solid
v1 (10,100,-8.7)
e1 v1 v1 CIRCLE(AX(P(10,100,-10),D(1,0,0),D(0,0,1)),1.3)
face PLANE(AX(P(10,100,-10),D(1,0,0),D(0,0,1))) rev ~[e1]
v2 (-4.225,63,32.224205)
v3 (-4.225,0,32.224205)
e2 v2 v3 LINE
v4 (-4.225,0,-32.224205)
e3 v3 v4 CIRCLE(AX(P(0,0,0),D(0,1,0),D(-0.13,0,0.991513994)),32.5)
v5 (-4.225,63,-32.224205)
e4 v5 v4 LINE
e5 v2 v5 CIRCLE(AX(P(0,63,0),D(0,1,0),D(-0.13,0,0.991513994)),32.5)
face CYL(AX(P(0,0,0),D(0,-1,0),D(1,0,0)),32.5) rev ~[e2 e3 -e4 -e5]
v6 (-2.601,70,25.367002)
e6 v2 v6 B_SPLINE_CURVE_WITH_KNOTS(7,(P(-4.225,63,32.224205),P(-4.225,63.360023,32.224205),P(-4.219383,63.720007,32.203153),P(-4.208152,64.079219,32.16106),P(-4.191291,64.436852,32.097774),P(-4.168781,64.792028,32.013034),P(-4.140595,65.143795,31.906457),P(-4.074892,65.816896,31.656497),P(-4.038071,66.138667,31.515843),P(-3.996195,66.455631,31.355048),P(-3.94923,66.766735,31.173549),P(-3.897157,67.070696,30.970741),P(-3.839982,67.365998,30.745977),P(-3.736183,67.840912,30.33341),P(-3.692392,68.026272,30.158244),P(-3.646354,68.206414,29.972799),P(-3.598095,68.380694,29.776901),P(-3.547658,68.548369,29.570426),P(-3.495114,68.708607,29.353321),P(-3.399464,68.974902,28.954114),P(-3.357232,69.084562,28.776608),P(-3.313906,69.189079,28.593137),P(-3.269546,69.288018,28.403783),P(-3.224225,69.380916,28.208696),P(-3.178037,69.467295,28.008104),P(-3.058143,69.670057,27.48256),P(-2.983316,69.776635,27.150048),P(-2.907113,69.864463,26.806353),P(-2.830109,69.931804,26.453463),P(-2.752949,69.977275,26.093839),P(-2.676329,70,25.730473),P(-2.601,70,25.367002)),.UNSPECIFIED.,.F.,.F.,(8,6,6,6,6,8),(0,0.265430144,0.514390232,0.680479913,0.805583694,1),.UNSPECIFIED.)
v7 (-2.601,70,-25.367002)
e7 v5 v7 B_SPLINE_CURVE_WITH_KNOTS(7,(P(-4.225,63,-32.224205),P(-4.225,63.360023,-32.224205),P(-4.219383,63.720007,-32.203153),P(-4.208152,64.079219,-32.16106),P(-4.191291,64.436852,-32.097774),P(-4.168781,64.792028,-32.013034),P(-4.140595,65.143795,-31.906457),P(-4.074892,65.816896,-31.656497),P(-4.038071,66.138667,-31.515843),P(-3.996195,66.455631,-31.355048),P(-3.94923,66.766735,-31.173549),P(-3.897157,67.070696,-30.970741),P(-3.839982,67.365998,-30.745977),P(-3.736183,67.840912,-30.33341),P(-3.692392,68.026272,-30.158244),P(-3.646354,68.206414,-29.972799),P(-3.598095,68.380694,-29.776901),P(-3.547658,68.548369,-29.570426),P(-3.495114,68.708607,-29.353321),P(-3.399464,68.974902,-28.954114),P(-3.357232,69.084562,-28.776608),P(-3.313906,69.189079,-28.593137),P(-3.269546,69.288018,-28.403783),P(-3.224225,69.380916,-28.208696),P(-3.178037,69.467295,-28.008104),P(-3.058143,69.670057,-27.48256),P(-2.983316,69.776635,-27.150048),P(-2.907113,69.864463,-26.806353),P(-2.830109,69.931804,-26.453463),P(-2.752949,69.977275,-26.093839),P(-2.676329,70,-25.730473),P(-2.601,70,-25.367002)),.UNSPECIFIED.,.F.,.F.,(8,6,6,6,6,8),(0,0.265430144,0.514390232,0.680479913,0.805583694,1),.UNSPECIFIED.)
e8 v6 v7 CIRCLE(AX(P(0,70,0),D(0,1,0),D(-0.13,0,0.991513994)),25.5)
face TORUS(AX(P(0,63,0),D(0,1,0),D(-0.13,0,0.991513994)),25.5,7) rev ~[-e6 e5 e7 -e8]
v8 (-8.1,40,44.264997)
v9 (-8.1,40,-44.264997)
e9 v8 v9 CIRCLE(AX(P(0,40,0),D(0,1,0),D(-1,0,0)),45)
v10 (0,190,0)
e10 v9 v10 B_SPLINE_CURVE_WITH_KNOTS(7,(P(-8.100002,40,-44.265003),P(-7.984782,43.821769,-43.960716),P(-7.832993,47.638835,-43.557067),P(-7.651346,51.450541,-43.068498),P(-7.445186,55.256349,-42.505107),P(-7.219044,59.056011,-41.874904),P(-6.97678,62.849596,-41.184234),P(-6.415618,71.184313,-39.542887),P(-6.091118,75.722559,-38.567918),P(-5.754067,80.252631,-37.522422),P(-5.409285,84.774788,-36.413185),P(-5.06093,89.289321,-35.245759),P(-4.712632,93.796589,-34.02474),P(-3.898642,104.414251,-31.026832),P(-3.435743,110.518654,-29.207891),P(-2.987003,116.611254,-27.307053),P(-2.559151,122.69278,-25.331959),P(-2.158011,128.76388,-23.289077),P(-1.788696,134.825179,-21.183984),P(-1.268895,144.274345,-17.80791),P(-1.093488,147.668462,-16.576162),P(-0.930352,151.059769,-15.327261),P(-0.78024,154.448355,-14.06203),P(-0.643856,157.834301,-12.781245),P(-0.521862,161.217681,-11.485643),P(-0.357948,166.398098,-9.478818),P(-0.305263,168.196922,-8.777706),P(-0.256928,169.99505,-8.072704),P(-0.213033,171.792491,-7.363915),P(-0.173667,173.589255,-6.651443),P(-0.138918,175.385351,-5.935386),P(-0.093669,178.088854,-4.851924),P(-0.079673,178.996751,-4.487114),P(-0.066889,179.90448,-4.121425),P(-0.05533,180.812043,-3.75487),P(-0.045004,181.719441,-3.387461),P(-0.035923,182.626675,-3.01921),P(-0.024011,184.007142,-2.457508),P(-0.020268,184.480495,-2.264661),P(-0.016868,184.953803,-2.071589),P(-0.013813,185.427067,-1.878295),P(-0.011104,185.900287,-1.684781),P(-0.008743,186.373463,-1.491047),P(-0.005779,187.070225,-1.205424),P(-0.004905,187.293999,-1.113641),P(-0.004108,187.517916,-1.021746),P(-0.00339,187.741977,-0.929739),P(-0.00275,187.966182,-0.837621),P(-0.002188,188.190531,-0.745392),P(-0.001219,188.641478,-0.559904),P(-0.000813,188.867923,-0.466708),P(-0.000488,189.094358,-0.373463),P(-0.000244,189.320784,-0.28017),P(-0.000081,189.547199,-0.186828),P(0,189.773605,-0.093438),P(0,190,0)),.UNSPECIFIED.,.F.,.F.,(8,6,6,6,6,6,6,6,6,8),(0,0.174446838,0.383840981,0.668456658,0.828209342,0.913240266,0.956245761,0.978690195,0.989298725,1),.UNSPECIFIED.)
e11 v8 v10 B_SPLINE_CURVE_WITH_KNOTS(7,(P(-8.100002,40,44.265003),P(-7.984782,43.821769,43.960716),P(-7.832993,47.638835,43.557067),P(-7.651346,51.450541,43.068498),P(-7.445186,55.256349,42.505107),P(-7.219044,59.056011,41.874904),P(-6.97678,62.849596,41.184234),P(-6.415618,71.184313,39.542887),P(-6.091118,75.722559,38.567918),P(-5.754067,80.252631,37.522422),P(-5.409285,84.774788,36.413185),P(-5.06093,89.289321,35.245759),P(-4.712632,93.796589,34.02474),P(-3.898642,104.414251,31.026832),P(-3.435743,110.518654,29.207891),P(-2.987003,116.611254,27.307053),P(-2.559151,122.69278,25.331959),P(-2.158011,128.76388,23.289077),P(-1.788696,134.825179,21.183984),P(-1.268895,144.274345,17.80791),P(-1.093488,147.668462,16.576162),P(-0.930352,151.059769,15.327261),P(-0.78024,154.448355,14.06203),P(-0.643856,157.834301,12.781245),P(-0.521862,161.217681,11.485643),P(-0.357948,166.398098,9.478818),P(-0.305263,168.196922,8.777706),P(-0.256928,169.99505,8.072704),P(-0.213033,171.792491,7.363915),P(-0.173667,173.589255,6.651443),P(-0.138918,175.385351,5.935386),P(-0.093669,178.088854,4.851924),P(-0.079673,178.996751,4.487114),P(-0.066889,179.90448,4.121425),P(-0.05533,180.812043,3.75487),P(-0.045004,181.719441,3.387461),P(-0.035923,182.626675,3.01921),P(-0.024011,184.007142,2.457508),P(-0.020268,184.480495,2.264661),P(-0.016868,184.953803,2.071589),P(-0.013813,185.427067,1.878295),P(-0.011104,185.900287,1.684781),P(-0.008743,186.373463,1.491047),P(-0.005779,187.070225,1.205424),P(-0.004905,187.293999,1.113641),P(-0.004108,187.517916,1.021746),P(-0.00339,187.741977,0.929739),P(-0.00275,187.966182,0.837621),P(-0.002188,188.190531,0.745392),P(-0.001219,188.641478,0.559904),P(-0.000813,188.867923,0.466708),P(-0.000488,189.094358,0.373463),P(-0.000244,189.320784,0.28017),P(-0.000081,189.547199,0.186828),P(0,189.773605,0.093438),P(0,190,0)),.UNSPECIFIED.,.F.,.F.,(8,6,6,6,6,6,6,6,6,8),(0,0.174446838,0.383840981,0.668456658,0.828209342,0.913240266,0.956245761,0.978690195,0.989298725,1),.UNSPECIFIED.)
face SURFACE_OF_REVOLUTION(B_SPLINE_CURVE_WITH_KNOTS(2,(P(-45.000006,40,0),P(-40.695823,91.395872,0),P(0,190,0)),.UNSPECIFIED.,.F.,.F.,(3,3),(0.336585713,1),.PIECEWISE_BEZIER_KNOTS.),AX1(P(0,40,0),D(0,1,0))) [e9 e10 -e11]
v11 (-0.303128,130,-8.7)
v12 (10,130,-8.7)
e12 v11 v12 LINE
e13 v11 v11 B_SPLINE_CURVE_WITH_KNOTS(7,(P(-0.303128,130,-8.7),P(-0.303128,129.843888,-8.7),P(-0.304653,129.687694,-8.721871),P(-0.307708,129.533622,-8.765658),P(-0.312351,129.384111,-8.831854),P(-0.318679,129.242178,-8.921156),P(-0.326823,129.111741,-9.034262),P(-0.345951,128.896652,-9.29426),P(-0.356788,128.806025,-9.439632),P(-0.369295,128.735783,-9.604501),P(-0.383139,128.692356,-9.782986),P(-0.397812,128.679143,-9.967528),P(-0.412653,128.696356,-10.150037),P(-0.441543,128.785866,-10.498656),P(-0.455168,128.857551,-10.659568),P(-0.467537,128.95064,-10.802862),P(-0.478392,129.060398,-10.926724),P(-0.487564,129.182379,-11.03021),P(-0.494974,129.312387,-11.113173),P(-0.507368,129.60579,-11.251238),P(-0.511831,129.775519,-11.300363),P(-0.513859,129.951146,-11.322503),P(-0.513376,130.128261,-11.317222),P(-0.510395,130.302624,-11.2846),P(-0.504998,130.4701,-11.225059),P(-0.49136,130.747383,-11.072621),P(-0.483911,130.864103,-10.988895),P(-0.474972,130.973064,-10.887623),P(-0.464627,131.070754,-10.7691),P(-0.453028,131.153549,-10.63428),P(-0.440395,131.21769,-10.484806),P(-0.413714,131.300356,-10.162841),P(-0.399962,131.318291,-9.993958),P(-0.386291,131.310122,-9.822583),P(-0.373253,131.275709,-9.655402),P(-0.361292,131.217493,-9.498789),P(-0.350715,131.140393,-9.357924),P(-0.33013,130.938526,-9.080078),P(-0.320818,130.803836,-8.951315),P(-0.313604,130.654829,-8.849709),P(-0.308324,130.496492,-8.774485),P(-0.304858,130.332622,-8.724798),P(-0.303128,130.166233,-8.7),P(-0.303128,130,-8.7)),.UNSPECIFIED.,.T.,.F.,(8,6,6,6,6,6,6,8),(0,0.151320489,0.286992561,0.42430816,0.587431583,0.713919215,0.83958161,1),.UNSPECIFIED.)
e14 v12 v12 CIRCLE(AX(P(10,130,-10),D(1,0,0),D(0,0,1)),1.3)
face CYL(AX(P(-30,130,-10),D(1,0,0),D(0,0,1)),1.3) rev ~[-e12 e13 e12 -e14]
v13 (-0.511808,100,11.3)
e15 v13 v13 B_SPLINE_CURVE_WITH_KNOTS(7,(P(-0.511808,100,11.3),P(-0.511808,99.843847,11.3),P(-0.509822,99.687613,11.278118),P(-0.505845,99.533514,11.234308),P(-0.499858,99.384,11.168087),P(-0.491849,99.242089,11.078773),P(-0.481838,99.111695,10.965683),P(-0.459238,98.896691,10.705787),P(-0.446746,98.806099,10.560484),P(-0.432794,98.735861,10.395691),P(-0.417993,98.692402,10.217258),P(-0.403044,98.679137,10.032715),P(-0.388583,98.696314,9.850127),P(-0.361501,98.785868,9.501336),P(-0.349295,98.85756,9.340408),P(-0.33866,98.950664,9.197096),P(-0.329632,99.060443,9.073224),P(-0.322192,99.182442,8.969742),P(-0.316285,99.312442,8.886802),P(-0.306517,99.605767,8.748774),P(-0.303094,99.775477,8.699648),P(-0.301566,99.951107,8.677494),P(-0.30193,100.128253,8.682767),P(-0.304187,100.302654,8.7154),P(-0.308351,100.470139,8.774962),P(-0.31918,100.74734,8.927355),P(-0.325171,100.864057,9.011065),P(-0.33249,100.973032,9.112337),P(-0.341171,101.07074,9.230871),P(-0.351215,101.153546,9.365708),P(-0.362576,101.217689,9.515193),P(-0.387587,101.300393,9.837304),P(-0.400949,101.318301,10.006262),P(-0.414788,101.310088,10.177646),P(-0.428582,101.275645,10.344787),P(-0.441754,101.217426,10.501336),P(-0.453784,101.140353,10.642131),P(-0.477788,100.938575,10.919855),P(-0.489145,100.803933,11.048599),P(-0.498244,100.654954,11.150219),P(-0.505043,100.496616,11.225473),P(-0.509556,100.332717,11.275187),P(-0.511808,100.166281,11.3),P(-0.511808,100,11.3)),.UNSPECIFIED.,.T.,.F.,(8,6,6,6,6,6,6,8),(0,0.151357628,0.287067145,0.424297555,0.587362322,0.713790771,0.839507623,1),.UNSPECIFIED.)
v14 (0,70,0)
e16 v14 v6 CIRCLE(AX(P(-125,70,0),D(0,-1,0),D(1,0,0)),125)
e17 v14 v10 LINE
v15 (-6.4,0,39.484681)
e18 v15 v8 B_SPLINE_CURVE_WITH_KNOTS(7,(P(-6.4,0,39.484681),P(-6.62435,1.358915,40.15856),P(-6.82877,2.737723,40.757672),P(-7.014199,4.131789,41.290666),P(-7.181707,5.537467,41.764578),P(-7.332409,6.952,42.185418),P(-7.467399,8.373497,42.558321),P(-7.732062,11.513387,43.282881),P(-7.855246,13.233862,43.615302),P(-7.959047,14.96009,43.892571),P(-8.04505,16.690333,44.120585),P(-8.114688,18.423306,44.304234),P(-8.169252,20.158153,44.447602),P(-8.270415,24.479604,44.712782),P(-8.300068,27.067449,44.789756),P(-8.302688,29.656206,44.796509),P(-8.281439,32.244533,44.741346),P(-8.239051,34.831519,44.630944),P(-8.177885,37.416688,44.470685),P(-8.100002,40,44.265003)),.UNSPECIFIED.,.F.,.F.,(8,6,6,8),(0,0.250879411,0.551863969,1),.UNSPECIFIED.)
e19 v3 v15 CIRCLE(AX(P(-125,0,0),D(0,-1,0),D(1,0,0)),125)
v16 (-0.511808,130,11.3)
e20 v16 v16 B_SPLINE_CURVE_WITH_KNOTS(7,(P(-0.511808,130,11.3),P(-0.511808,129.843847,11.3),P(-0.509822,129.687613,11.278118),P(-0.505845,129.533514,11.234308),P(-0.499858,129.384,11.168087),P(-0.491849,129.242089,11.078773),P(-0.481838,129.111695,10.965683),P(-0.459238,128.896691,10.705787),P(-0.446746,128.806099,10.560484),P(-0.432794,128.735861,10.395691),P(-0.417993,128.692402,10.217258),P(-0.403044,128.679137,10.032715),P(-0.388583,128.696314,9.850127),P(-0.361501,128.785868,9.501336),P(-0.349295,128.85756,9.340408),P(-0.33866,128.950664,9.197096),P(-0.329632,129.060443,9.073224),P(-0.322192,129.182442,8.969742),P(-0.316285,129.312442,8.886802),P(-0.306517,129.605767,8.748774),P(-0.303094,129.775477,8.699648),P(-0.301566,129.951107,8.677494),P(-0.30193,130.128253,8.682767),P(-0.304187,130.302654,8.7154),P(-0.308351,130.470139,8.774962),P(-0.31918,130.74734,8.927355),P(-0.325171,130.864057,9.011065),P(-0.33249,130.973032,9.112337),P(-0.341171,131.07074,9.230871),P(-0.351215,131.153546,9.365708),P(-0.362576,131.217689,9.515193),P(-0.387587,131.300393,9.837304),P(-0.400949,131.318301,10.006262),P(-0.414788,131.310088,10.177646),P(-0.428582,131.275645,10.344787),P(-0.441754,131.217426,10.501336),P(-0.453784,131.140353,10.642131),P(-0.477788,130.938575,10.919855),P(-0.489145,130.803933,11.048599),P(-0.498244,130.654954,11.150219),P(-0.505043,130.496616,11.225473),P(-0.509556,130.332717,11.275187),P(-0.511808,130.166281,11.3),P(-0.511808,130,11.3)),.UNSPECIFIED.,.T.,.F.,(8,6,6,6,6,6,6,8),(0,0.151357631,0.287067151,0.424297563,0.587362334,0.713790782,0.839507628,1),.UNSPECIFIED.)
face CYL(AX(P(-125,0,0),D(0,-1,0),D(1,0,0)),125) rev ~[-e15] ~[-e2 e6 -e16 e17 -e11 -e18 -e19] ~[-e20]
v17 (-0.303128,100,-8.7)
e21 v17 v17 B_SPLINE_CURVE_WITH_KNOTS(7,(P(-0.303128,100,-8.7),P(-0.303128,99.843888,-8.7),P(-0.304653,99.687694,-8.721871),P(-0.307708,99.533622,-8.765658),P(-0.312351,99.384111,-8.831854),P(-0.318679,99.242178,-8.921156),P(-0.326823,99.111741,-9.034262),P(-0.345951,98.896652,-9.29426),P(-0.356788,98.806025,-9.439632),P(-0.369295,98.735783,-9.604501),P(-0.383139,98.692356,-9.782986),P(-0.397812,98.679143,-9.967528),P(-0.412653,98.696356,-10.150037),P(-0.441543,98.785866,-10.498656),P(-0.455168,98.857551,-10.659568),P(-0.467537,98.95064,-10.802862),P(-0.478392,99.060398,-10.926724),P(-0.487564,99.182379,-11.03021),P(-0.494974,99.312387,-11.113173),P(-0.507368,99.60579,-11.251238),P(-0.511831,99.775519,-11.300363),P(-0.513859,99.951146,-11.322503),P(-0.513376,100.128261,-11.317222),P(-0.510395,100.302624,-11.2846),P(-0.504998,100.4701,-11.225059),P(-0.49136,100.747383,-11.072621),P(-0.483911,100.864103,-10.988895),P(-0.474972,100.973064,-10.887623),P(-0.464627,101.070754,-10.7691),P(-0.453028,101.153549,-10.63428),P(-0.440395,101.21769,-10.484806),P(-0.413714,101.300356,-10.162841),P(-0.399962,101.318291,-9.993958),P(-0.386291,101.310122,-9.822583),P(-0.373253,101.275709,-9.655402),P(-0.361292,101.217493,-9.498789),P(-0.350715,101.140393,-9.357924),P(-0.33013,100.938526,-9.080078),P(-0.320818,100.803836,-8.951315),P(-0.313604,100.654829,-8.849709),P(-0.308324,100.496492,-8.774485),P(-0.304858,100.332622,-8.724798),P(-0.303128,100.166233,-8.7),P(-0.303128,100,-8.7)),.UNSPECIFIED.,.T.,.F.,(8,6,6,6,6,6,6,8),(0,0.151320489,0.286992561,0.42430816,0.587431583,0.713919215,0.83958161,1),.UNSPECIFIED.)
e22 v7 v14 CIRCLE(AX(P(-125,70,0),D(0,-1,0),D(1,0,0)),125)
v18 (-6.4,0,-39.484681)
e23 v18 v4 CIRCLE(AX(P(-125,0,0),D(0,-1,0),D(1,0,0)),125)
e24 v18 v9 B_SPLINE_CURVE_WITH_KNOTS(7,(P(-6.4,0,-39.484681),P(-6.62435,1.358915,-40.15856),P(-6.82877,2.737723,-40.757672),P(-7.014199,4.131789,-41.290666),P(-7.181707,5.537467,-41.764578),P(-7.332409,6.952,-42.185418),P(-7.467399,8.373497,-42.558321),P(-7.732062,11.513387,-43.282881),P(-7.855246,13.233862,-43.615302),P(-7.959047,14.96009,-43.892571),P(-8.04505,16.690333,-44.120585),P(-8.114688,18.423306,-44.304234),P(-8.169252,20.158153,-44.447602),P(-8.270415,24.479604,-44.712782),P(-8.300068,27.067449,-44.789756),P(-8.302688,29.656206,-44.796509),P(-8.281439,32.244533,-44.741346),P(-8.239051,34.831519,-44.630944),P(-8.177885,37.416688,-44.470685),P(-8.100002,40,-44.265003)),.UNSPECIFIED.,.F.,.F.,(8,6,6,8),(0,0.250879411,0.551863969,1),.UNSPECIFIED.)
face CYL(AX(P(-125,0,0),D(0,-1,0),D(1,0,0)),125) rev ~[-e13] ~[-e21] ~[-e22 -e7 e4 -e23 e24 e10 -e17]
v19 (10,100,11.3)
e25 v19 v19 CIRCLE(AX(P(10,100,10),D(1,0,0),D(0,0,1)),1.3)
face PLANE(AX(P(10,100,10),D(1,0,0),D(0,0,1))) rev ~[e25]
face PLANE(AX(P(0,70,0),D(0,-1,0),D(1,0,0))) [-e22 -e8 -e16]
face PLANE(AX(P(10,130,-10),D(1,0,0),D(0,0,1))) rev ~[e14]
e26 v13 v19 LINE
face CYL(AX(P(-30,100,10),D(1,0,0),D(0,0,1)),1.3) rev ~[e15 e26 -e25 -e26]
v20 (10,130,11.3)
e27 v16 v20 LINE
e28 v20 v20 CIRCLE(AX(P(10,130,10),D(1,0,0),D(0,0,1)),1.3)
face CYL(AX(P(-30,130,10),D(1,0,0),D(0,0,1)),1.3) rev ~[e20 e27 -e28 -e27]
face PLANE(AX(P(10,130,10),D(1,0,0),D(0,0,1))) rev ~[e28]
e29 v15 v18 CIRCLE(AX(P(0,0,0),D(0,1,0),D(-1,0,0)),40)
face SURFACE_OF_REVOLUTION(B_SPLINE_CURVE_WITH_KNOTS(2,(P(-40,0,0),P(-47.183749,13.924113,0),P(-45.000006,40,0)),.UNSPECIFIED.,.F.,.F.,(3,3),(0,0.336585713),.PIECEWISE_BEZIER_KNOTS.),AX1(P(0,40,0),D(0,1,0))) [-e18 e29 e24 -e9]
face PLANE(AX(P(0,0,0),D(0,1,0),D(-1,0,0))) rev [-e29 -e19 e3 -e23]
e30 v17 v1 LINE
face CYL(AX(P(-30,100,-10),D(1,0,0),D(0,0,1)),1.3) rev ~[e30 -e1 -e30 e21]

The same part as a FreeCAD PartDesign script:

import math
import FreeCAD as App
import Part
import Sketcher
from FreeCAD import Vector
Q = App.Units.Quantity


def edges_at(feature, points):
    """Names of the edges that pass closest to the given points."""
    edges = feature.Shape.Edges
    near = lambda p: min(range(len(edges)), key=lambda i: edges[i].distToShape(Part.Vertex(*p))[0])
    return sorted({f"Edge{near(p) + 1}" for p in points})

doc = App.newDocument("Part")
body = doc.addObject("PartDesign::Body", "Body")

sketch1 = body.newObject("Sketcher::SketchObject", "Sketch")
sketch1.AttachmentSupport = (doc.getObject("XY_Plane"), [""])
sketch1.MapMode = "FlatFace"
sketch1.addGeometry(Part.LineSegment(Vector(-40, 0, 0), Vector(0, 0, 0)), False)
sketch1.addGeometry(Part.LineSegment(Vector(0, 0, 0), Vector(0, 190, 0)), False)
sketch1.addGeometry(Part.BSplineCurve([Vector(-45.000006, 40, 0), Vector(-40.695823, 91.395872, 0), Vector(0, 190, 0)], [3, 3], [0.336585713, 1], False, 2, [1, 1, 1], False), False)
sketch1.addGeometry(Part.BSplineCurve([Vector(-40, 0, 0), Vector(-47.183749, 13.924113, 0), Vector(-45.000006, 40, 0)], [3, 3], [0, 0.336585713], False, 2, [1, 1, 1], False), False)
sketch1.addConstraint(Sketcher.Constraint("Block", 2))
sketch1.addConstraint(Sketcher.Constraint("Block", 3))
sketch1.addConstraint(Sketcher.Constraint("Coincident", 0, 2, 1, 1))
sketch1.addConstraint(Sketcher.Constraint("Coincident", 1, 2, 2, 2))
sketch1.addConstraint(Sketcher.Constraint("Coincident", 3, 1, 0, 1))
sketch1.addConstraint(Sketcher.Constraint("Horizontal", 0))
sketch1.addConstraint(Sketcher.Constraint("Vertical", 1))
revolution = body.newObject("PartDesign::Revolution", "Revolution")
revolution.Profile = sketch1
revolution.ReferenceAxis = (sketch1, ["V_Axis"])
revolution.Angle = 360

sketch2 = body.newObject("Sketcher::SketchObject", "Sketch001")
sketch2.AttachmentSupport = (doc.getObject("XZ_Plane"), [""])
sketch2.MapMode = "FlatFace"
sketch2.addGeometry(Part.ArcOfCircle(Part.Circle(Vector(0, 0, 0), Vector(0, 0, 1), 51), math.radians(126), math.radians(234)), False)
sketch2.addGeometry(Part.LineSegment(Vector(-30, 41, 0), Vector(-30, -41, 0)), False)
sketch2.addConstraint(Sketcher.Constraint("Coincident", 0, 1, 1, 1))
sketch2.addConstraint(Sketcher.Constraint("Coincident", 1, 2, 0, 2))
sketch2.addConstraint(Sketcher.Constraint("Vertical", 1))
sketch2.addConstraint(Sketcher.Constraint("Coincident", 0, 3, -1, 1))
sketch2.addConstraint(Sketcher.Constraint("DistanceX", 0, 1, -1, 1, Q("30 mm")))
sketch2.addConstraint(Sketcher.Constraint("Radius", 0, Q("50.9747 mm")))
pocket1 = body.newObject("PartDesign::Pocket", "Pocket")
pocket1.Profile = sketch2
pocket1.Length = 400

sketch3 = body.newObject("Sketcher::SketchObject", "Sketch002")
sketch3.AttachmentSupport = (doc.getObject("YZ_Plane"), [""])
sketch3.MapMode = "FlatFace"
sketch3.AttachmentOffset = App.Placement(Vector(0, 0, -30), App.Rotation())
sketch3.addGeometry(Part.Circle(Vector(100, -10, 0), Vector(0, 0, 1), 1.3), False)
sketch3.addGeometry(Part.Circle(Vector(130, -10, 0), Vector(0, 0, 1), 1.3), False)
sketch3.addGeometry(Part.Circle(Vector(130, 10, 0), Vector(0, 0, 1), 1.3), False)
sketch3.addGeometry(Part.Circle(Vector(100, 10, 0), Vector(0, 0, 1), 1.3), False)
sketch3.addConstraint(Sketcher.Constraint("Equal", 0, 1))
sketch3.addConstraint(Sketcher.Constraint("Equal", 1, 2))
sketch3.addConstraint(Sketcher.Constraint("Equal", 2, 3))
sketch3.addConstraint(Sketcher.Constraint("Symmetric", 1, 3, 2, 3, -1))
sketch3.addConstraint(Sketcher.Constraint("Symmetric", 0, 3, 3, 3, -1))
sketch3.addConstraint(Sketcher.Constraint("Horizontal", 0, 3, 1, 3))
sketch3.addConstraint(Sketcher.Constraint("Diameter", 0, Q("2.6 mm")))
sketch3.addConstraint(Sketcher.Constraint("DistanceX", -1, 1, 0, 3, Q("100 mm")))
sketch3.addConstraint(Sketcher.Constraint("DistanceY", 0, 3, -1, 1, Q("10 mm")))
sketch3.addConstraint(Sketcher.Constraint("DistanceX", -1, 1, 1, 3, Q("130 mm")))
doc.recompute()
hole = body.newObject("PartDesign::Hole", "Hole")
hole.Profile = sketch3
hole.ThreadType = "None"
hole.Diameter = 2.6
hole.DepthType = "Dimension"
hole.Depth = 40
hole.DrillPoint = "Flat"
hole.Reversed = True

sketch4 = body.newObject("Sketcher::SketchObject", "Sketch003")
sketch4.AttachmentSupport = (doc.getObject("XZ_Plane"), [""])
sketch4.MapMode = "FlatFace"
sketch4.addGeometry(Part.Circle(Vector(-125, 0, 0), Vector(0, 0, 1), 125), False)
sketch4.addConstraint(Sketcher.Constraint("PointOnObject", 0, 3, -1))
sketch4.addConstraint(Sketcher.Constraint("Diameter", 0, Q("250 mm")))
sketch4.addConstraint(Sketcher.Constraint("DistanceX", 0, 3, -1, 1, Q("125 mm")))
pocket2 = body.newObject("PartDesign::Pocket", "Pocket001")
pocket2.Profile = sketch4
pocket2.Length = 400

sketch5 = body.newObject("Sketcher::SketchObject", "Sketch004")
sketch5.AttachmentSupport = (doc.getObject("XZ_Plane"), [""])
sketch5.MapMode = "FlatFace"
sketch5.addGeometry(Part.Circle(Vector(0, 0, 0), Vector(0, 0, 1), 32), False)
sketch5.addConstraint(Sketcher.Constraint("Coincident", 0, 3, -1, 1))
sketch5.addConstraint(Sketcher.Constraint("Diameter", 0, Q("65 mm")))
pocket3 = body.newObject("PartDesign::Pocket", "Pocket002")
pocket3.Profile = sketch5
pocket3.Length = 70
doc.recompute()

fillet = body.newObject("PartDesign::Fillet", "Fillet")
fillet.Base = (pocket3, edges_at(pocket3, [(32.5, 70, 0)]))
fillet.Radius = 7

doc.recompute()
